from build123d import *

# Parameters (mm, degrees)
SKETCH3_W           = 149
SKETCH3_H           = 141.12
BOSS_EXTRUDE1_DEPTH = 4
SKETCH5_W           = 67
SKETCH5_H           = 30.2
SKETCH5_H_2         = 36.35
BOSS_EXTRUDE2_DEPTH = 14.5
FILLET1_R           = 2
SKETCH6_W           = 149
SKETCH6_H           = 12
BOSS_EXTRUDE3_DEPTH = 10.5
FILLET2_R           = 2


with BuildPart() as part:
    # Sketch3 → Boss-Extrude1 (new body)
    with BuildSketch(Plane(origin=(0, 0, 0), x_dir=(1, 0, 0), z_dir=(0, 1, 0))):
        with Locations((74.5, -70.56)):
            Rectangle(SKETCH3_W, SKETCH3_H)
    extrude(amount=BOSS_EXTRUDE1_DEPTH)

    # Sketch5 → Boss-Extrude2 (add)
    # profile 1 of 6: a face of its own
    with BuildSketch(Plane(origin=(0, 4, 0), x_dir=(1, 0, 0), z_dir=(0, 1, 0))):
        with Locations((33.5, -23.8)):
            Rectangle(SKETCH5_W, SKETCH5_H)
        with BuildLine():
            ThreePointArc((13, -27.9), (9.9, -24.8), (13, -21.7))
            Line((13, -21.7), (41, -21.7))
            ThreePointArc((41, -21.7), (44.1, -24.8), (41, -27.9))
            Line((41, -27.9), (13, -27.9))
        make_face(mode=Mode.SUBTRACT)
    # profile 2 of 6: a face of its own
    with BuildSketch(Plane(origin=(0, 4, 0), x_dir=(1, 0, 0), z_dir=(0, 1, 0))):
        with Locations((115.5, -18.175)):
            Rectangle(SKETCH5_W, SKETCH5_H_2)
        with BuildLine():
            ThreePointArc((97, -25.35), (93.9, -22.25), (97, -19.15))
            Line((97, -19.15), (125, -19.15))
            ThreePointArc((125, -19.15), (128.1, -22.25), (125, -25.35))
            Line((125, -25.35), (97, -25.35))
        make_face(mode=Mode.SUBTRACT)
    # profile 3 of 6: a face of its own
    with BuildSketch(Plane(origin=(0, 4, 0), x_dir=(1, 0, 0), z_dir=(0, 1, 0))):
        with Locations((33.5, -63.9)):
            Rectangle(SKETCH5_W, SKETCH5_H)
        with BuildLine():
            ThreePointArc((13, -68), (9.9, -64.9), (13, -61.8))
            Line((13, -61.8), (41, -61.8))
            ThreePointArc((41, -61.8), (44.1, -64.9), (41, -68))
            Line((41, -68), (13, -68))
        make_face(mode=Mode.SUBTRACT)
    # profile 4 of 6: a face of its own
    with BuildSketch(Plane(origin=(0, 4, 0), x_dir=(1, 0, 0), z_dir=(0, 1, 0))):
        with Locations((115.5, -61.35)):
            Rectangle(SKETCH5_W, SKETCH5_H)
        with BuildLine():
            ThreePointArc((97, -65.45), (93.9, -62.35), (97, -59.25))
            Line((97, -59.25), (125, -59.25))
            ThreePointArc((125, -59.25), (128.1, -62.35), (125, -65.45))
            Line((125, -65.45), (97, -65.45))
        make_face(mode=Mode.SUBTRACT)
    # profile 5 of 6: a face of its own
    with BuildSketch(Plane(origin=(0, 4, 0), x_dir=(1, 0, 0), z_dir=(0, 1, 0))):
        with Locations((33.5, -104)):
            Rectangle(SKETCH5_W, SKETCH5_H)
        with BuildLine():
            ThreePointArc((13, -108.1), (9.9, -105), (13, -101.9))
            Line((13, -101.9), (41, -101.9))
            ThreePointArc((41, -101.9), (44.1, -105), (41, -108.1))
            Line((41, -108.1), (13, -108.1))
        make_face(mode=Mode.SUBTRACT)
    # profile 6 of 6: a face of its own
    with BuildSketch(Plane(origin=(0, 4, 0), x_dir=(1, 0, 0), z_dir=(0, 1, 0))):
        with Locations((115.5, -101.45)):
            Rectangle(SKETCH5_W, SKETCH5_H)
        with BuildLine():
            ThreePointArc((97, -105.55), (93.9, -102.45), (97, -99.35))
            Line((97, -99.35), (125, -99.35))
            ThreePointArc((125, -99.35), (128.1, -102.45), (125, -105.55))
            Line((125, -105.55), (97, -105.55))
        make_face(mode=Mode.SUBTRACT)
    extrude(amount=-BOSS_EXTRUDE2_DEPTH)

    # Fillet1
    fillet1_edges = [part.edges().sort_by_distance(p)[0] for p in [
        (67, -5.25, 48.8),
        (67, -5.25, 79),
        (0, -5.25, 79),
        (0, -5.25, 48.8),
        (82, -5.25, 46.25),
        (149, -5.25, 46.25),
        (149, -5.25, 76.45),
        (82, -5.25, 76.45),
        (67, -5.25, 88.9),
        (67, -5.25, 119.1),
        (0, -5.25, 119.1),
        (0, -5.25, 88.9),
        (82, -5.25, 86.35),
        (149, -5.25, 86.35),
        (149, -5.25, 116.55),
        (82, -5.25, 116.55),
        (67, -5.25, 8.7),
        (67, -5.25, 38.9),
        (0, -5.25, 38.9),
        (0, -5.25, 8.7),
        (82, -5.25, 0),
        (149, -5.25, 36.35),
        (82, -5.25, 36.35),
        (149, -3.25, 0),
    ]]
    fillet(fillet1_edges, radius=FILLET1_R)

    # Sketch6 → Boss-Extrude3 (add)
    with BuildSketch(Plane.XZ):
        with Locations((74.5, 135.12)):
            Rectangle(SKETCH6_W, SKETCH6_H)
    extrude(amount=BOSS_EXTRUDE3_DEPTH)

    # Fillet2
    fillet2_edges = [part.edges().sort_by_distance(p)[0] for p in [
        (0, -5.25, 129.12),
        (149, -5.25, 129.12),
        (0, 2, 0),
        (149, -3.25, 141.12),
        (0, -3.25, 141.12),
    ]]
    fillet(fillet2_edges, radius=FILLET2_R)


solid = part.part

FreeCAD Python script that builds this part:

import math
import FreeCAD as App
import Part
import Sketcher
from FreeCAD import Vector


def edges_at(feature, points):
    """Names of the edges that pass closest to the given points."""
    edges = feature.Shape.Edges
    near = lambda p: min(range(len(edges)), key=lambda i: edges[i].distToShape(Part.Vertex(*p))[0])
    return sorted({f"Edge{near(p) + 1}" for p in points})

doc = App.newDocument("Part")
body = doc.addObject("PartDesign::Body", "Body")

# Sketch on XZ plane
sketch1 = body.newObject("Sketcher::SketchObject", "Sketch")
sketch1.AttachmentSupport = (doc.getObject("XZ_Plane"), [""])
sketch1.MapMode = "FlatFace"
sketch1.addGeometry(Part.LineSegment(Vector(0, 0, 0), Vector(0, 141.12, 0)), False)
sketch1.addGeometry(Part.LineSegment(Vector(0, 141.12, 0), Vector(149, 141.12, 0)), False)
sketch1.addGeometry(Part.LineSegment(Vector(149, 141.12, 0), Vector(149, 0, 0)), False)
sketch1.addGeometry(Part.LineSegment(Vector(149, 0, 0), Vector(0, 0, 0)), False)
sketch1.addConstraint(Sketcher.Constraint("Coincident", 0, 2, 1, 1))
sketch1.addConstraint(Sketcher.Constraint("Coincident", 1, 2, 2, 1))
sketch1.addConstraint(Sketcher.Constraint("Coincident", 2, 2, 3, 1))
sketch1.addConstraint(Sketcher.Constraint("Coincident", 3, 2, 0, 1))
sketch1.addConstraint(Sketcher.Constraint("Vertical", 0))
sketch1.addConstraint(Sketcher.Constraint("Horizontal", 1))
sketch1.addConstraint(Sketcher.Constraint("Vertical", 2))
sketch1.addConstraint(Sketcher.Constraint("Horizontal", 3))
sketch1.addConstraint(Sketcher.Constraint("Coincident", 3, 2, -1, 1))
sketch1.addConstraint(Sketcher.Constraint("DistanceX", 1, 1, 1, 2, 149.0))
sketch1.addConstraint(Sketcher.Constraint("DistanceY", 0, 1, 0, 2, 141.12))
pad1 = body.newObject("PartDesign::Pad", "Pad")
pad1.Profile = sketch1
pad1.Length = 4
pad1.Reversed = True

# Sketch on XZ plane
sketch2 = body.newObject("Sketcher::SketchObject", "Sketch001")
sketch2.AttachmentSupport = (doc.getObject("XZ_Plane"), [""])
sketch2.MapMode = "FlatFace"
sketch2.AttachmentOffset = App.Placement(Vector(0, 0, -4), App.Rotation())
sketch2.addGeometry(Part.LineSegment(Vector(0, 8.7, 0), Vector(0, 38.9, 0)), False)
sketch2.addGeometry(Part.LineSegment(Vector(0, 38.9, 0), Vector(67, 38.9, 0)), False)
sketch2.addGeometry(Part.LineSegment(Vector(67, 38.9, 0), Vector(67, 8.7, 0)), False)
sketch2.addGeometry(Part.LineSegment(Vector(67, 8.7, 0), Vector(0, 8.7, 0)), False)
sketch2.addGeometry(Part.LineSegment(Vector(41, 27.9, 0), Vector(13, 27.9, 0)), False)
sketch2.addGeometry(Part.ArcOfCircle(Part.Circle(Vector(13, 24.8, 0), Vector(0, 0, 1), 3.1), math.radians(90), math.radians(270)), False)
sketch2.addGeometry(Part.LineSegment(Vector(13, 21.7, 0), Vector(41, 21.7, 0)), False)
sketch2.addGeometry(Part.ArcOfCircle(Part.Circle(Vector(41, 24.8, 0), Vector(0, 0, 1), 3.1), math.radians(-90), math.radians(90)), False)
sketch2.addGeometry(Part.LineSegment(Vector(82, 0, 0), Vector(82, 36.35, 0)), False)
sketch2.addGeometry(Part.LineSegment(Vector(82, 36.35, 0), Vector(149, 36.35, 0)), False)
sketch2.addGeometry(Part.LineSegment(Vector(149, 36.35, 0), Vector(149, 0, 0)), False)
sketch2.addGeometry(Part.LineSegment(Vector(149, 0, 0), Vector(82, 0, 0)), False)
sketch2.addGeometry(Part.LineSegment(Vector(125, 25.35, 0), Vector(97, 25.35, 0)), False)
sketch2.addGeometry(Part.ArcOfCircle(Part.Circle(Vector(97, 22.25, 0), Vector(0, 0, 1), 3.1), math.radians(90), math.radians(270)), False)
sketch2.addGeometry(Part.LineSegment(Vector(97, 19.15, 0), Vector(125, 19.15, 0)), False)
sketch2.addGeometry(Part.ArcOfCircle(Part.Circle(Vector(125, 22.25, 0), Vector(0, 0, 1), 3.1), math.radians(-90), math.radians(90)), False)
sketch2.addGeometry(Part.LineSegment(Vector(0, 48.8, 0), Vector(0, 79, 0)), False)
sketch2.addGeometry(Part.LineSegment(Vector(0, 79, 0), Vector(67, 79, 0)), False)
sketch2.addGeometry(Part.LineSegment(Vector(67, 79, 0), Vector(67, 48.8, 0)), False)
sketch2.addGeometry(Part.LineSegment(Vector(67, 48.8, 0), Vector(0, 48.8, 0)), False)
sketch2.addGeometry(Part.LineSegment(Vector(41, 68, 0), Vector(13, 68, 0)), False)
sketch2.addGeometry(Part.ArcOfCircle(Part.Circle(Vector(13, 64.9, 0), Vector(0, 0, 1), 3.1), math.radians(90), math.radians(270)), False)
sketch2.addGeometry(Part.LineSegment(Vector(13, 61.8, 0), Vector(41, 61.8, 0)), False)
sketch2.addGeometry(Part.ArcOfCircle(Part.Circle(Vector(41, 64.9, 0), Vector(0, 0, 1), 3.1), math.radians(-90), math.radians(90)), False)
sketch2.addGeometry(Part.LineSegment(Vector(82, 46.25, 0), Vector(82, 76.45, 0)), False)
sketch2.addGeometry(Part.LineSegment(Vector(82, 76.45, 0), Vector(149, 76.45, 0)), False)
sketch2.addGeometry(Part.LineSegment(Vector(149, 76.45, 0), Vector(149, 46.25, 0)), False)
sketch2.addGeometry(Part.LineSegment(Vector(149, 46.25, 0), Vector(82, 46.25, 0)), False)
sketch2.addGeometry(Part.LineSegment(Vector(125, 65.45, 0), Vector(97, 65.45, 0)), False)
sketch2.addGeometry(Part.ArcOfCircle(Part.Circle(Vector(97, 62.35, 0), Vector(0, 0, 1), 3.1), math.radians(90), math.radians(270)), False)
sketch2.addGeometry(Part.LineSegment(Vector(97, 59.25, 0), Vector(125, 59.25, 0)), False)
sketch2.addGeometry(Part.ArcOfCircle(Part.Circle(Vector(125, 62.35, 0), Vector(0, 0, 1), 3.1), math.radians(-90), math.radians(90)), False)
sketch2.addGeometry(Part.LineSegment(Vector(0, 88.9, 0), Vector(0, 119.1, 0)), False)
sketch2.addGeometry(Part.LineSegment(Vector(0, 119.1, 0), Vector(67, 119.1, 0)), False)
sketch2.addGeometry(Part.LineSegment(Vector(67, 119.1, 0), Vector(67, 88.9, 0)), False)
sketch2.addGeometry(Part.LineSegment(Vector(67, 88.9, 0), Vector(0, 88.9, 0)), False)
sketch2.addGeometry(Part.LineSegment(Vector(41, 108.1, 0), Vector(13, 108.1, 0)), False)
sketch2.addGeometry(Part.ArcOfCircle(Part.Circle(Vector(13, 105, 0), Vector(0, 0, 1), 3.1), math.radians(90), math.radians(270)), False)
sketch2.addGeometry(Part.LineSegment(Vector(13, 101.9, 0), Vector(41, 101.9, 0)), False)
sketch2.addGeometry(Part.ArcOfCircle(Part.Circle(Vector(41, 105, 0), Vector(0, 0, 1), 3.1), math.radians(-90), math.radians(90)), False)
sketch2.addGeometry(Part.LineSegment(Vector(82, 86.35, 0), Vector(82, 116.55, 0)), False)
sketch2.addGeometry(Part.LineSegment(Vector(82, 116.55, 0), Vector(149, 116.55, 0)), False)
sketch2.addGeometry(Part.LineSegment(Vector(149, 116.55, 0), Vector(149, 86.35, 0)), False)
sketch2.addGeometry(Part.LineSegment(Vector(149, 86.35, 0), Vector(82, 86.35, 0)), False)
sketch2.addGeometry(Part.LineSegment(Vector(125, 105.55, 0), Vector(97, 105.55, 0)), False)
sketch2.addGeometry(Part.ArcOfCircle(Part.Circle(Vector(97, 102.45, 0), Vector(0, 0, 1), 3.1), math.radians(90), math.radians(270)), False)
sketch2.addGeometry(Part.LineSegment(Vector(97, 99.35, 0), Vector(125, 99.35, 0)), False)
sketch2.addGeometry(Part.ArcOfCircle(Part.Circle(Vector(125, 102.45, 0), Vector(0, 0, 1), 3.1), math.radians(-90), math.radians(90)), False)
sketch2.addConstraint(Sketcher.Constraint("Coincident", 0, 2, 1, 1))
sketch2.addConstraint(Sketcher.Constraint("Coincident", 1, 2, 2, 1))
sketch2.addConstraint(Sketcher.Constraint("Coincident", 2, 2, 3, 1))
sketch2.addConstraint(Sketcher.Constraint("Coincident", 3, 2, 0, 1))
sketch2.addConstraint(Sketcher.Constraint("Tangent", 4, 2, 5, 1))
sketch2.addConstraint(Sketcher.Constraint("Tangent", 5, 2, 6, 1))
sketch2.addConstraint(Sketcher.Constraint("Tangent", 6, 2, 7, 1))
sketch2.addConstraint(Sketcher.Constraint("Tangent", 7, 2, 4, 1))
sketch2.addConstraint(Sketcher.Constraint("Coincident", 8, 2, 9, 1))
sketch2.addConstraint(Sketcher.Constraint("Coincident", 9, 2, 10, 1))
sketch2.addConstraint(Sketcher.Constraint("Coincident", 10, 2, 11, 1))
sketch2.addConstraint(Sketcher.Constraint("Coincident", 11, 2, 8, 1))
sketch2.addConstraint(Sketcher.Constraint("Tangent", 12, 2, 13, 1))
sketch2.addConstraint(Sketcher.Constraint("Tangent", 13, 2, 14, 1))
sketch2.addConstraint(Sketcher.Constraint("Tangent", 14, 2, 15, 1))
sketch2.addConstraint(Sketcher.Constraint("Tangent", 15, 2, 12, 1))
sketch2.addConstraint(Sketcher.Constraint("Coincident", 16, 2, 17, 1))
sketch2.addConstraint(Sketcher.Constraint("Coincident", 17, 2, 18, 1))
sketch2.addConstraint(Sketcher.Constraint("Coincident", 18, 2, 19, 1))
sketch2.addConstraint(Sketcher.Constraint("Coincident", 19, 2, 16, 1))
sketch2.addConstraint(Sketcher.Constraint("Tangent", 20, 2, 21, 1))
sketch2.addConstraint(Sketcher.Constraint("Tangent", 21, 2, 22, 1))
sketch2.addConstraint(Sketcher.Constraint("Tangent", 22, 2, 23, 1))
sketch2.addConstraint(Sketcher.Constraint("Tangent", 23, 2, 20, 1))
sketch2.addConstraint(Sketcher.Constraint("Coincident", 24, 2, 25, 1))
sketch2.addConstraint(Sketcher.Constraint("Coincident", 25, 2, 26, 1))
sketch2.addConstraint(Sketcher.Constraint("Coincident", 26, 2, 27, 1))
sketch2.addConstraint(Sketcher.Constraint("Coincident", 27, 2, 24, 1))
sketch2.addConstraint(Sketcher.Constraint("Tangent", 28, 2, 29, 1))
sketch2.addConstraint(Sketcher.Constraint("Tangent", 29, 2, 30, 1))
sketch2.addConstraint(Sketcher.Constraint("Tangent", 30, 2, 31, 1))
sketch2.addConstraint(Sketcher.Constraint("Tangent", 31, 2, 28, 1))
sketch2.addConstraint(Sketcher.Constraint("Coincident", 32, 2, 33, 1))
sketch2.addConstraint(Sketcher.Constraint("Coincident", 33, 2, 34, 1))
sketch2.addConstraint(Sketcher.Constraint("Coincident", 34, 2, 35, 1))
sketch2.addConstraint(Sketcher.Constraint("Coincident", 35, 2, 32, 1))
sketch2.addConstraint(Sketcher.Constraint("Tangent", 36, 2, 37, 1))
sketch2.addConstraint(Sketcher.Constraint("Tangent", 37, 2, 38, 1))
sketch2.addConstraint(Sketcher.Constraint("Tangent", 38, 2, 39, 1))
sketch2.addConstraint(Sketcher.Constraint("Tangent", 39, 2, 36, 1))
sketch2.addConstraint(Sketcher.Constraint("Coincident", 40, 2, 41, 1))
sketch2.addConstraint(Sketcher.Constraint("Coincident", 41, 2, 42, 1))
sketch2.addConstraint(Sketcher.Constraint("Coincident", 42, 2, 43, 1))
sketch2.addConstraint(Sketcher.Constraint("Coincident", 43, 2, 40, 1))
sketch2.addConstraint(Sketcher.Constraint("Tangent", 44, 2, 45, 1))
sketch2.addConstraint(Sketcher.Constraint("Tangent", 45, 2, 46, 1))
sketch2.addConstraint(Sketcher.Constraint("Tangent", 46, 2, 47, 1))
sketch2.addConstraint(Sketcher.Constraint("Tangent", 47, 2, 44, 1))
sketch2.addConstraint(Sketcher.Constraint("Vertical", 0))
sketch2.addConstraint(Sketcher.Constraint("Horizontal", 1))
sketch2.addConstraint(Sketcher.Constraint("Vertical", 2))
sketch2.addConstraint(Sketcher.Constraint("Horizontal", 3))
sketch2.addConstraint(Sketcher.Constraint("Horizontal", 4))
sketch2.addConstraint(Sketcher.Constraint("Horizontal", 6))
sketch2.addConstraint(Sketcher.Constraint("Vertical", 8))
sketch2.addConstraint(Sketcher.Constraint("Horizontal", 9))
sketch2.addConstraint(Sketcher.Constraint("Vertical", 10))
sketch2.addConstraint(Sketcher.Constraint("Horizontal", 11))
sketch2.addConstraint(Sketcher.Constraint("Horizontal", 12))
sketch2.addConstraint(Sketcher.Constraint("Horizontal", 14))
sketch2.addConstraint(Sketcher.Constraint("Vertical", 16))
sketch2.addConstraint(Sketcher.Constraint("Horizontal", 17))
sketch2.addConstraint(Sketcher.Constraint("Vertical", 18))
sketch2.addConstraint(Sketcher.Constraint("Horizontal", 19))
sketch2.addConstraint(Sketcher.Constraint("Horizontal", 20))
sketch2.addConstraint(Sketcher.Constraint("Horizontal", 22))
sketch2.addConstraint(Sketcher.Constraint("Vertical", 24))
sketch2.addConstraint(Sketcher.Constraint("Horizontal", 25))
sketch2.addConstraint(Sketcher.Constraint("Vertical", 26))
sketch2.addConstraint(Sketcher.Constraint("Horizontal", 27))
sketch2.addConstraint(Sketcher.Constraint("Horizontal", 28))
sketch2.addConstraint(Sketcher.Constraint("Horizontal", 30))
sketch2.addConstraint(Sketcher.Constraint("Vertical", 32))
sketch2.addConstraint(Sketcher.Constraint("Horizontal", 33))
sketch2.addConstraint(Sketcher.Constraint("Vertical", 34))
sketch2.addConstraint(Sketcher.Constraint("Horizontal", 35))
sketch2.addConstraint(Sketcher.Constraint("Horizontal", 36))
sketch2.addConstraint(Sketcher.Constraint("Horizontal", 38))
sketch2.addConstraint(Sketcher.Constraint("Vertical", 40))
sketch2.addConstraint(Sketcher.Constraint("Horizontal", 41))
sketch2.addConstraint(Sketcher.Constraint("Vertical", 42))
sketch2.addConstraint(Sketcher.Constraint("Horizontal", 43))
sketch2.addConstraint(Sketcher.Constraint("Horizontal", 44))
sketch2.addConstraint(Sketcher.Constraint("Horizontal", 46))
sketch2.addConstraint(Sketcher.Constraint("Equal", 7, 13))
sketch2.addConstraint(Sketcher.Constraint("Equal", 15, 21))
sketch2.addConstraint(Sketcher.Constraint("Equal", 23, 29))
sketch2.addConstraint(Sketcher.Constraint("Equal", 31, 37))
sketch2.addConstraint(Sketcher.Constraint("Equal", 39, 45))
sketch2.addConstraint(Sketcher.Constraint("PointOnObject", 0, 2, -2))
sketch2.addConstraint(Sketcher.Constraint("PointOnObject", 10, 2, -1))
sketch2.addConstraint(Sketcher.Constraint("PointOnObject", 16, 2, -2))
sketch2.addConstraint(Sketcher.Constraint("PointOnObject", 32, 2, -2))
sketch2.addConstraint(Sketcher.Constraint("Vertical", 5, 3, 21, 3))
sketch2.addConstraint(Sketcher.Constraint("Vertical", 7, 3, 23, 3))
sketch2.addConstraint(Sketcher.Constraint("Vertical", 13, 3, 29, 3))
sketch2.addConstraint(Sketcher.Constraint("Vertical", 15, 3, 31, 3))
sketch2.addConstraint(Sketcher.Constraint("Vertical", 21, 3, 37, 3))
sketch2.addConstraint(Sketcher.Constraint("Vertical", 23, 3, 39, 3))
sketch2.addConstraint(Sketcher.Constraint("Vertical", 29, 3, 45, 3))
sketch2.addConstraint(Sketcher.Constraint("Vertical", 31, 3, 47, 3))
sketch2.addConstraint(Sketcher.Constraint("Vertical", 2, 2, 17, 2))
sketch2.addConstraint(Sketcher.Constraint("Vertical", 11, 2, 24, 2))
sketch2.addConstraint(Sketcher.Constraint("Vertical", 10, 2, 25, 2))
sketch2.addConstraint(Sketcher.Constraint("Vertical", 18, 2, 33, 2))
sketch2.addConstraint(Sketcher.Constraint("Vertical", 27, 2, 40, 2))
sketch2.addConstraint(Sketcher.Constraint("Vertical", 26, 2, 41, 2))
sketch2.addConstraint(Sketcher.Constraint("Equal", 3, 9))
sketch2.addConstraint(Sketcher.Constraint("Equal", 6, 12))
sketch2.addConstraint(Sketcher.Constraint("Equal", 2, 16))
sketch2.addConstraint(Sketcher.Constraint("Equal", 18, 24))
sketch2.addConstraint(Sketcher.Constraint("Equal", 26, 32))
sketch2.addConstraint(Sketcher.Constraint("Equal", 34, 40))
sketch2.addConstraint(Sketcher.Constraint("Radius", 5, 3.1))
sketch2.addConstraint(Sketcher.Constraint("DistanceX", 1, 1, 1, 2, 67.0))
sketch2.addConstraint(Sketcher.Constraint("DistanceX", 4, 2, 4, 1, 28.0))
sketch2.addConstraint(Sketcher.Constraint("DistanceY", 0, 1, 0, 2, 30.2))
sketch2.addConstraint(Sketcher.Constraint("DistanceX", -1, 1, 5, 3, 13.0))
sketch2.addConstraint(Sketcher.Constraint("DistanceX", -1, 1, 13, 3, 97.0))
sketch2.addConstraint(Sketcher.Constraint("DistanceY", -1, 1, 37, 3, 105.0))
sketch2.addConstraint(Sketcher.Constraint("DistanceX", -1, 1, 8, 2, 82.0))
sketch2.addConstraint(Sketcher.Constraint("DistanceY", -1, 1, 16, 2, 79.0))
sketch2.addConstraint(Sketcher.Constraint("DistanceY", -1, 1, 20, 2, 68.0))
sketch2.addConstraint(Sketcher.Constraint("DistanceY", 0, 2, 21, 3, 26.0))
sketch2.addConstraint(Sketcher.Constraint("DistanceY", 4, 2, 0, 2, 11.0))
sketch2.addConstraint(Sketcher.Constraint("DistanceY", 8, 2, 29, 3, 26.0))
sketch2.addConstraint(Sketcher.Constraint("DistanceY", 12, 2, 8, 2, 11.0))
sketch2.addConstraint(Sketcher.Constraint("DistanceY", 24, 2, 45, 3, 26.0))
sketch2.addConstraint(Sketcher.Constraint("DistanceY", 15, 3, 26, 2, 24.0))
sketch2.addConstraint(Sketcher.Constraint("DistanceY", 21, 3, 35, 2, 24.0))
sketch2.addConstraint(Sketcher.Constraint("DistanceY", 31, 3, 42, 2, 24.0))
sketch2.addConstraint(Sketcher.Constraint("DistanceY", 8, 1, 8, 2, 36.35))
pad2 = body.newObject("PartDesign::Pad", "Pad001")
pad2.Profile = sketch2
pad2.Length = 14.5
doc.recompute()

fillet = body.newObject("PartDesign::Fillet", "Fillet")
fillet.Base = (pad2, edges_at(pad2, [
    (67, -5.25, 48.8),
    (67, -5.25, 79),
    (0, -5.25, 79),
    (0, -5.25, 48.8),
    (82, -5.25, 46.25),
    (149, -5.25, 46.25),
    (149, -5.25, 76.45),
    (82, -5.25, 76.45),
    (67, -5.25, 88.9),
    (67, -5.25, 119.1),
    (0, -5.25, 119.1),
    (0, -5.25, 88.9),
    (82, -5.25, 86.35),
    (149, -5.25, 86.35),
    (149, -5.25, 116.55),
    (82, -5.25, 116.55),
    (67, -5.25, 8.7),
    (67, -5.25, 38.9),
    (0, -5.25, 38.9),
    (0, -5.25, 8.7),
    (82, -5.25, 0),
    (149, -5.25, 36.35),
    (82, -5.25, 36.35),
    (149, -3.25, 0),
]))
fillet.Radius = 2

# Sketch on XZ plane
sketch3 = body.newObject("Sketcher::SketchObject", "Sketch002")
sketch3.AttachmentSupport = (doc.getObject("XZ_Plane"), [""])
sketch3.MapMode = "FlatFace"
sketch3.addGeometry(Part.LineSegment(Vector(0, 141.12, 0), Vector(0, 129.12, 0)), False)
sketch3.addGeometry(Part.LineSegment(Vector(0, 129.12, 0), Vector(149, 129.12, 0)), False)
sketch3.addGeometry(Part.LineSegment(Vector(149, 129.12, 0), Vector(149, 141.12, 0)), False)
sketch3.addGeometry(Part.LineSegment(Vector(149, 141.12, 0), Vector(0, 141.12, 0)), False)
sketch3.addConstraint(Sketcher.Constraint("Coincident", 0, 2, 1, 1))
sketch3.addConstraint(Sketcher.Constraint("Coincident", 1, 2, 2, 1))
sketch3.addConstraint(Sketcher.Constraint("Coincident", 2, 2, 3, 1))
sketch3.addConstraint(Sketcher.Constraint("Coincident", 3, 2, 0, 1))
sketch3.addConstraint(Sketcher.Constraint("Vertical", 0))
sketch3.addConstraint(Sketcher.Constraint("Horizontal", 1))
sketch3.addConstraint(Sketcher.Constraint("Vertical", 2))
sketch3.addConstraint(Sketcher.Constraint("Horizontal", 3))
sketch3.addConstraint(Sketcher.Constraint("PointOnObject", 0, 2, -2))
sketch3.addConstraint(Sketcher.Constraint("DistanceX", 1, 1, 1, 2, 149.0))
sketch3.addConstraint(Sketcher.Constraint("DistanceY", 0, 2, 0, 1, 12.0))
sketch3.addConstraint(Sketcher.Constraint("DistanceY", -1, 1, 0, 2, 129.12))
pad3 = body.newObject("PartDesign::Pad", "Pad002")
pad3.Profile = sketch3
pad3.Length = 10.5
doc.recompute()

fillet2 = body.newObject("PartDesign::Fillet", "Fillet001")
fillet2.Base = (pad3, edges_at(pad3, [
    (0, -5.25, 129.12),
    (149, -5.25, 129.12),
    (0, 2, 0),
    (149, -3.25, 141.12),
    (0, -3.25, 141.12),
]))
fillet2.Radius = 2

doc.recompute()
